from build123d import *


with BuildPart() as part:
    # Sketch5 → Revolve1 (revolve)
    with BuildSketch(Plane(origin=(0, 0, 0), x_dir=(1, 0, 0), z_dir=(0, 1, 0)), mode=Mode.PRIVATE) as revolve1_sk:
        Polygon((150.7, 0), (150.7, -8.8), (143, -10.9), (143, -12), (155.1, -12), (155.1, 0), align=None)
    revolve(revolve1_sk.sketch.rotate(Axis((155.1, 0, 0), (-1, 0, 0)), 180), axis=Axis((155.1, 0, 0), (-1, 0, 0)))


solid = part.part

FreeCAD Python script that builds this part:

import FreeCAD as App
import Part
import Sketcher

V = App.Vector


def add_polygon(sketch, points):
    """Adds a closed chain of lines whose ends are joined by coincident constraints."""
    first, n = sketch.GeometryCount, len(points)
    for a, b in zip(points, points[1:] + points[:1]):
        sketch.addGeometry(Part.LineSegment(App.Vector(*a, 0), App.Vector(*b, 0)), False)
    for i in range(n):
        sketch.addConstraint(Sketcher.Constraint("Coincident", first + i, 2, first + (i + 1) % n, 1))

doc = App.newDocument("Part")
body = doc.addObject("PartDesign::Body", "Body")

sketch1 = body.newObject("Sketcher::SketchObject", "Sketch")
sketch1.AttachmentSupport = (doc.getObject("XZ_Plane"), [""])
sketch1.MapMode = "FlatFace"
add_polygon(sketch1, [(150.7, 0), (150.7, 8.8), (143, 10.9), (143, 12), (155.1, 12), (155.1, 0)])
sketch1.addConstraint(Sketcher.Constraint("Vertical", 0))
sketch1.addConstraint(Sketcher.Constraint("Vertical", 2))
sketch1.addConstraint(Sketcher.Constraint("Horizontal", 3))
sketch1.addConstraint(Sketcher.Constraint("Vertical", 4))
sketch1.addConstraint(Sketcher.Constraint("Horizontal", 5))
sketch1.addConstraint(Sketcher.Constraint("PointOnObject", 4, 2, -1))
sketch1.addConstraint(Sketcher.Constraint("DistanceY", 4, 2, 4, 1, 12.0))
sketch1.addConstraint(Sketcher.Constraint("DistanceX", 3, 1, 3, 2, 12.1))
sketch1.addConstraint(Sketcher.Constraint("DistanceX", 5, 2, 5, 1, 4.4))
sketch1.addConstraint(Sketcher.Constraint("DistanceY", 0, 1, 0, 2, 8.8))
sketch1.addConstraint(Sketcher.Constraint("DistanceY", 2, 1, 2, 2, 1.1))
sketch1.addConstraint(Sketcher.Constraint("DistanceX", -1, 1, 1, 2, 143.0))
revolution = body.newObject("PartDesign::Revolution", "Revolution")
revolution.Profile = sketch1
revolution.ReferenceAxis = (sketch1, ["H_Axis"])
revolution.Angle = 360

doc.recompute()
